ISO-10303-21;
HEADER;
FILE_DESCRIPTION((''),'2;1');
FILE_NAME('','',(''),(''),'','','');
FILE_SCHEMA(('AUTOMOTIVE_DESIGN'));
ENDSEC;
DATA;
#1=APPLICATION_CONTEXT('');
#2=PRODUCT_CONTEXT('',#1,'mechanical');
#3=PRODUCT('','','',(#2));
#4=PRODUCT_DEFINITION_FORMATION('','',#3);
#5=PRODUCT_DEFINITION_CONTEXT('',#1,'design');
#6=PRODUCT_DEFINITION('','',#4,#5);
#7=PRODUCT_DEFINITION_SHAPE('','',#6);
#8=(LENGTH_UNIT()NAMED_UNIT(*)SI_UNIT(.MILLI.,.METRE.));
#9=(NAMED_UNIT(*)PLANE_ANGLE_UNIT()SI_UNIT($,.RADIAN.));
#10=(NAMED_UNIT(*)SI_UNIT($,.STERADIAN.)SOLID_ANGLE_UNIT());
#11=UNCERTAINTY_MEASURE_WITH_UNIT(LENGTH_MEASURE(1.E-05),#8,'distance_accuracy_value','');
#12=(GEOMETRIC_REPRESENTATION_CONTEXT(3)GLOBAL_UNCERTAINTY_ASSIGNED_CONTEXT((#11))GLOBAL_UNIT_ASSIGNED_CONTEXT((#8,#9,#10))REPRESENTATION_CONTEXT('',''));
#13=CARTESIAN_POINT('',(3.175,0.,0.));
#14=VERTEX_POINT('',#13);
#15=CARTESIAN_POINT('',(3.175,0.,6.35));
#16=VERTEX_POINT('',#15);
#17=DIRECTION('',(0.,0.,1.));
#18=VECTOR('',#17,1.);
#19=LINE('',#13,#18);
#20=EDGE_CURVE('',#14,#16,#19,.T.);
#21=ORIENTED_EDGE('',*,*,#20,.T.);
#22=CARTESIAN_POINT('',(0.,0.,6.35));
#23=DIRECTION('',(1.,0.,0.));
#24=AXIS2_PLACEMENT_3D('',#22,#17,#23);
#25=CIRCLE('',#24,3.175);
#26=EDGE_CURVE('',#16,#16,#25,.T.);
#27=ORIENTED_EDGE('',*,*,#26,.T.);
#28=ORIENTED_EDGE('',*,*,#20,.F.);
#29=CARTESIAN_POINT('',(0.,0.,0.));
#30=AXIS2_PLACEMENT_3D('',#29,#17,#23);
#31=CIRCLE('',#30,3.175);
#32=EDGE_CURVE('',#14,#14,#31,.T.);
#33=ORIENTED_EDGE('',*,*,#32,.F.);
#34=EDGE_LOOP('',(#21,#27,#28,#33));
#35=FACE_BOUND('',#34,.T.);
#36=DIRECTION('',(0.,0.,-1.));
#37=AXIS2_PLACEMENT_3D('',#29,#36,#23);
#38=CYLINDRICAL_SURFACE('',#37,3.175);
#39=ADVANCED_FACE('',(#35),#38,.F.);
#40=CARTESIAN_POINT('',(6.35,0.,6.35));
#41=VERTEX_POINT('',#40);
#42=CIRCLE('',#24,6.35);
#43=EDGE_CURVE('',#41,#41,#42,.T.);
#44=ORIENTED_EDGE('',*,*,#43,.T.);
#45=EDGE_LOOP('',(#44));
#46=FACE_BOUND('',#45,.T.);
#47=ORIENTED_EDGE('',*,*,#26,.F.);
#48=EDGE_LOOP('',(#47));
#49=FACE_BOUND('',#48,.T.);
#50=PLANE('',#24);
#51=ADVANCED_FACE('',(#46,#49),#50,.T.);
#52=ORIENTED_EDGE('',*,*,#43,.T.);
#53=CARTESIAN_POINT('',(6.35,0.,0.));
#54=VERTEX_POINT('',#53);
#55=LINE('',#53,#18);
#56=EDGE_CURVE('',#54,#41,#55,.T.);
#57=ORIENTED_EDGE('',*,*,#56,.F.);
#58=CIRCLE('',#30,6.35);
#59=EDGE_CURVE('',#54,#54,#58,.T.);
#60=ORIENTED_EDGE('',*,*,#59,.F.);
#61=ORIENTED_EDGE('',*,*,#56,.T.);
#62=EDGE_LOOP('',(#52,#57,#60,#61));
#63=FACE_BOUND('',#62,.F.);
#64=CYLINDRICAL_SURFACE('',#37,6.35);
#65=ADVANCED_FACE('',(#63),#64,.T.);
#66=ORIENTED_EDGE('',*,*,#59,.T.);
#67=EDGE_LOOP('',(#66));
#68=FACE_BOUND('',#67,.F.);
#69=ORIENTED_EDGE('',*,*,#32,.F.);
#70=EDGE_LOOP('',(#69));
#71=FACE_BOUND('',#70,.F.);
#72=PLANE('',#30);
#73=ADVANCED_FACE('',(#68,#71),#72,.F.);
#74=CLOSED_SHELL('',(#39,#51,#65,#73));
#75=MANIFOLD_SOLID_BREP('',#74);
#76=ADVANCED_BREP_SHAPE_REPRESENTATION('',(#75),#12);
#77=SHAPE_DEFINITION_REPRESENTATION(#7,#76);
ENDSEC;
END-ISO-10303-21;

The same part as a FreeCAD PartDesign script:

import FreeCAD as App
import Part
import Sketcher
Q = App.Units.Quantity

doc = App.newDocument("Part")
body = doc.addObject("PartDesign::Body", "Body")

# Sketch on XY plane
sketch1 = doc.addObject("Sketcher::SketchObject", "Sketch")
body.addObject(sketch1)
sketch1.AttachmentSupport = (doc.XY_Plane, [""])
sketch1.MapMode = "FlatFace"
sketch1.addGeometry([
    Part.Circle(App.Vector(0, 0, 0), App.Vector(0, 0, 1), 6.3),
    Part.Circle(App.Vector(0, 0, 0), App.Vector(0, 0, 1), 3.2),
], False)
sketch1.addConstraint([
    Sketcher.Constraint("Coincident", 0, 3, -1, 1),
    Sketcher.Constraint("Coincident", 1, 3, -1, 1),
    Sketcher.Constraint("Diameter", 0, Q("0.5 in")),
    Sketcher.Constraint("Diameter", 1, Q("0.25 in")),
])
pad1 = doc.addObject("PartDesign::Pad", "Pad")
body.addObject(pad1)
pad1.Profile = sketch1
pad1.Length = Q("0.25 in")

doc.recompute()
